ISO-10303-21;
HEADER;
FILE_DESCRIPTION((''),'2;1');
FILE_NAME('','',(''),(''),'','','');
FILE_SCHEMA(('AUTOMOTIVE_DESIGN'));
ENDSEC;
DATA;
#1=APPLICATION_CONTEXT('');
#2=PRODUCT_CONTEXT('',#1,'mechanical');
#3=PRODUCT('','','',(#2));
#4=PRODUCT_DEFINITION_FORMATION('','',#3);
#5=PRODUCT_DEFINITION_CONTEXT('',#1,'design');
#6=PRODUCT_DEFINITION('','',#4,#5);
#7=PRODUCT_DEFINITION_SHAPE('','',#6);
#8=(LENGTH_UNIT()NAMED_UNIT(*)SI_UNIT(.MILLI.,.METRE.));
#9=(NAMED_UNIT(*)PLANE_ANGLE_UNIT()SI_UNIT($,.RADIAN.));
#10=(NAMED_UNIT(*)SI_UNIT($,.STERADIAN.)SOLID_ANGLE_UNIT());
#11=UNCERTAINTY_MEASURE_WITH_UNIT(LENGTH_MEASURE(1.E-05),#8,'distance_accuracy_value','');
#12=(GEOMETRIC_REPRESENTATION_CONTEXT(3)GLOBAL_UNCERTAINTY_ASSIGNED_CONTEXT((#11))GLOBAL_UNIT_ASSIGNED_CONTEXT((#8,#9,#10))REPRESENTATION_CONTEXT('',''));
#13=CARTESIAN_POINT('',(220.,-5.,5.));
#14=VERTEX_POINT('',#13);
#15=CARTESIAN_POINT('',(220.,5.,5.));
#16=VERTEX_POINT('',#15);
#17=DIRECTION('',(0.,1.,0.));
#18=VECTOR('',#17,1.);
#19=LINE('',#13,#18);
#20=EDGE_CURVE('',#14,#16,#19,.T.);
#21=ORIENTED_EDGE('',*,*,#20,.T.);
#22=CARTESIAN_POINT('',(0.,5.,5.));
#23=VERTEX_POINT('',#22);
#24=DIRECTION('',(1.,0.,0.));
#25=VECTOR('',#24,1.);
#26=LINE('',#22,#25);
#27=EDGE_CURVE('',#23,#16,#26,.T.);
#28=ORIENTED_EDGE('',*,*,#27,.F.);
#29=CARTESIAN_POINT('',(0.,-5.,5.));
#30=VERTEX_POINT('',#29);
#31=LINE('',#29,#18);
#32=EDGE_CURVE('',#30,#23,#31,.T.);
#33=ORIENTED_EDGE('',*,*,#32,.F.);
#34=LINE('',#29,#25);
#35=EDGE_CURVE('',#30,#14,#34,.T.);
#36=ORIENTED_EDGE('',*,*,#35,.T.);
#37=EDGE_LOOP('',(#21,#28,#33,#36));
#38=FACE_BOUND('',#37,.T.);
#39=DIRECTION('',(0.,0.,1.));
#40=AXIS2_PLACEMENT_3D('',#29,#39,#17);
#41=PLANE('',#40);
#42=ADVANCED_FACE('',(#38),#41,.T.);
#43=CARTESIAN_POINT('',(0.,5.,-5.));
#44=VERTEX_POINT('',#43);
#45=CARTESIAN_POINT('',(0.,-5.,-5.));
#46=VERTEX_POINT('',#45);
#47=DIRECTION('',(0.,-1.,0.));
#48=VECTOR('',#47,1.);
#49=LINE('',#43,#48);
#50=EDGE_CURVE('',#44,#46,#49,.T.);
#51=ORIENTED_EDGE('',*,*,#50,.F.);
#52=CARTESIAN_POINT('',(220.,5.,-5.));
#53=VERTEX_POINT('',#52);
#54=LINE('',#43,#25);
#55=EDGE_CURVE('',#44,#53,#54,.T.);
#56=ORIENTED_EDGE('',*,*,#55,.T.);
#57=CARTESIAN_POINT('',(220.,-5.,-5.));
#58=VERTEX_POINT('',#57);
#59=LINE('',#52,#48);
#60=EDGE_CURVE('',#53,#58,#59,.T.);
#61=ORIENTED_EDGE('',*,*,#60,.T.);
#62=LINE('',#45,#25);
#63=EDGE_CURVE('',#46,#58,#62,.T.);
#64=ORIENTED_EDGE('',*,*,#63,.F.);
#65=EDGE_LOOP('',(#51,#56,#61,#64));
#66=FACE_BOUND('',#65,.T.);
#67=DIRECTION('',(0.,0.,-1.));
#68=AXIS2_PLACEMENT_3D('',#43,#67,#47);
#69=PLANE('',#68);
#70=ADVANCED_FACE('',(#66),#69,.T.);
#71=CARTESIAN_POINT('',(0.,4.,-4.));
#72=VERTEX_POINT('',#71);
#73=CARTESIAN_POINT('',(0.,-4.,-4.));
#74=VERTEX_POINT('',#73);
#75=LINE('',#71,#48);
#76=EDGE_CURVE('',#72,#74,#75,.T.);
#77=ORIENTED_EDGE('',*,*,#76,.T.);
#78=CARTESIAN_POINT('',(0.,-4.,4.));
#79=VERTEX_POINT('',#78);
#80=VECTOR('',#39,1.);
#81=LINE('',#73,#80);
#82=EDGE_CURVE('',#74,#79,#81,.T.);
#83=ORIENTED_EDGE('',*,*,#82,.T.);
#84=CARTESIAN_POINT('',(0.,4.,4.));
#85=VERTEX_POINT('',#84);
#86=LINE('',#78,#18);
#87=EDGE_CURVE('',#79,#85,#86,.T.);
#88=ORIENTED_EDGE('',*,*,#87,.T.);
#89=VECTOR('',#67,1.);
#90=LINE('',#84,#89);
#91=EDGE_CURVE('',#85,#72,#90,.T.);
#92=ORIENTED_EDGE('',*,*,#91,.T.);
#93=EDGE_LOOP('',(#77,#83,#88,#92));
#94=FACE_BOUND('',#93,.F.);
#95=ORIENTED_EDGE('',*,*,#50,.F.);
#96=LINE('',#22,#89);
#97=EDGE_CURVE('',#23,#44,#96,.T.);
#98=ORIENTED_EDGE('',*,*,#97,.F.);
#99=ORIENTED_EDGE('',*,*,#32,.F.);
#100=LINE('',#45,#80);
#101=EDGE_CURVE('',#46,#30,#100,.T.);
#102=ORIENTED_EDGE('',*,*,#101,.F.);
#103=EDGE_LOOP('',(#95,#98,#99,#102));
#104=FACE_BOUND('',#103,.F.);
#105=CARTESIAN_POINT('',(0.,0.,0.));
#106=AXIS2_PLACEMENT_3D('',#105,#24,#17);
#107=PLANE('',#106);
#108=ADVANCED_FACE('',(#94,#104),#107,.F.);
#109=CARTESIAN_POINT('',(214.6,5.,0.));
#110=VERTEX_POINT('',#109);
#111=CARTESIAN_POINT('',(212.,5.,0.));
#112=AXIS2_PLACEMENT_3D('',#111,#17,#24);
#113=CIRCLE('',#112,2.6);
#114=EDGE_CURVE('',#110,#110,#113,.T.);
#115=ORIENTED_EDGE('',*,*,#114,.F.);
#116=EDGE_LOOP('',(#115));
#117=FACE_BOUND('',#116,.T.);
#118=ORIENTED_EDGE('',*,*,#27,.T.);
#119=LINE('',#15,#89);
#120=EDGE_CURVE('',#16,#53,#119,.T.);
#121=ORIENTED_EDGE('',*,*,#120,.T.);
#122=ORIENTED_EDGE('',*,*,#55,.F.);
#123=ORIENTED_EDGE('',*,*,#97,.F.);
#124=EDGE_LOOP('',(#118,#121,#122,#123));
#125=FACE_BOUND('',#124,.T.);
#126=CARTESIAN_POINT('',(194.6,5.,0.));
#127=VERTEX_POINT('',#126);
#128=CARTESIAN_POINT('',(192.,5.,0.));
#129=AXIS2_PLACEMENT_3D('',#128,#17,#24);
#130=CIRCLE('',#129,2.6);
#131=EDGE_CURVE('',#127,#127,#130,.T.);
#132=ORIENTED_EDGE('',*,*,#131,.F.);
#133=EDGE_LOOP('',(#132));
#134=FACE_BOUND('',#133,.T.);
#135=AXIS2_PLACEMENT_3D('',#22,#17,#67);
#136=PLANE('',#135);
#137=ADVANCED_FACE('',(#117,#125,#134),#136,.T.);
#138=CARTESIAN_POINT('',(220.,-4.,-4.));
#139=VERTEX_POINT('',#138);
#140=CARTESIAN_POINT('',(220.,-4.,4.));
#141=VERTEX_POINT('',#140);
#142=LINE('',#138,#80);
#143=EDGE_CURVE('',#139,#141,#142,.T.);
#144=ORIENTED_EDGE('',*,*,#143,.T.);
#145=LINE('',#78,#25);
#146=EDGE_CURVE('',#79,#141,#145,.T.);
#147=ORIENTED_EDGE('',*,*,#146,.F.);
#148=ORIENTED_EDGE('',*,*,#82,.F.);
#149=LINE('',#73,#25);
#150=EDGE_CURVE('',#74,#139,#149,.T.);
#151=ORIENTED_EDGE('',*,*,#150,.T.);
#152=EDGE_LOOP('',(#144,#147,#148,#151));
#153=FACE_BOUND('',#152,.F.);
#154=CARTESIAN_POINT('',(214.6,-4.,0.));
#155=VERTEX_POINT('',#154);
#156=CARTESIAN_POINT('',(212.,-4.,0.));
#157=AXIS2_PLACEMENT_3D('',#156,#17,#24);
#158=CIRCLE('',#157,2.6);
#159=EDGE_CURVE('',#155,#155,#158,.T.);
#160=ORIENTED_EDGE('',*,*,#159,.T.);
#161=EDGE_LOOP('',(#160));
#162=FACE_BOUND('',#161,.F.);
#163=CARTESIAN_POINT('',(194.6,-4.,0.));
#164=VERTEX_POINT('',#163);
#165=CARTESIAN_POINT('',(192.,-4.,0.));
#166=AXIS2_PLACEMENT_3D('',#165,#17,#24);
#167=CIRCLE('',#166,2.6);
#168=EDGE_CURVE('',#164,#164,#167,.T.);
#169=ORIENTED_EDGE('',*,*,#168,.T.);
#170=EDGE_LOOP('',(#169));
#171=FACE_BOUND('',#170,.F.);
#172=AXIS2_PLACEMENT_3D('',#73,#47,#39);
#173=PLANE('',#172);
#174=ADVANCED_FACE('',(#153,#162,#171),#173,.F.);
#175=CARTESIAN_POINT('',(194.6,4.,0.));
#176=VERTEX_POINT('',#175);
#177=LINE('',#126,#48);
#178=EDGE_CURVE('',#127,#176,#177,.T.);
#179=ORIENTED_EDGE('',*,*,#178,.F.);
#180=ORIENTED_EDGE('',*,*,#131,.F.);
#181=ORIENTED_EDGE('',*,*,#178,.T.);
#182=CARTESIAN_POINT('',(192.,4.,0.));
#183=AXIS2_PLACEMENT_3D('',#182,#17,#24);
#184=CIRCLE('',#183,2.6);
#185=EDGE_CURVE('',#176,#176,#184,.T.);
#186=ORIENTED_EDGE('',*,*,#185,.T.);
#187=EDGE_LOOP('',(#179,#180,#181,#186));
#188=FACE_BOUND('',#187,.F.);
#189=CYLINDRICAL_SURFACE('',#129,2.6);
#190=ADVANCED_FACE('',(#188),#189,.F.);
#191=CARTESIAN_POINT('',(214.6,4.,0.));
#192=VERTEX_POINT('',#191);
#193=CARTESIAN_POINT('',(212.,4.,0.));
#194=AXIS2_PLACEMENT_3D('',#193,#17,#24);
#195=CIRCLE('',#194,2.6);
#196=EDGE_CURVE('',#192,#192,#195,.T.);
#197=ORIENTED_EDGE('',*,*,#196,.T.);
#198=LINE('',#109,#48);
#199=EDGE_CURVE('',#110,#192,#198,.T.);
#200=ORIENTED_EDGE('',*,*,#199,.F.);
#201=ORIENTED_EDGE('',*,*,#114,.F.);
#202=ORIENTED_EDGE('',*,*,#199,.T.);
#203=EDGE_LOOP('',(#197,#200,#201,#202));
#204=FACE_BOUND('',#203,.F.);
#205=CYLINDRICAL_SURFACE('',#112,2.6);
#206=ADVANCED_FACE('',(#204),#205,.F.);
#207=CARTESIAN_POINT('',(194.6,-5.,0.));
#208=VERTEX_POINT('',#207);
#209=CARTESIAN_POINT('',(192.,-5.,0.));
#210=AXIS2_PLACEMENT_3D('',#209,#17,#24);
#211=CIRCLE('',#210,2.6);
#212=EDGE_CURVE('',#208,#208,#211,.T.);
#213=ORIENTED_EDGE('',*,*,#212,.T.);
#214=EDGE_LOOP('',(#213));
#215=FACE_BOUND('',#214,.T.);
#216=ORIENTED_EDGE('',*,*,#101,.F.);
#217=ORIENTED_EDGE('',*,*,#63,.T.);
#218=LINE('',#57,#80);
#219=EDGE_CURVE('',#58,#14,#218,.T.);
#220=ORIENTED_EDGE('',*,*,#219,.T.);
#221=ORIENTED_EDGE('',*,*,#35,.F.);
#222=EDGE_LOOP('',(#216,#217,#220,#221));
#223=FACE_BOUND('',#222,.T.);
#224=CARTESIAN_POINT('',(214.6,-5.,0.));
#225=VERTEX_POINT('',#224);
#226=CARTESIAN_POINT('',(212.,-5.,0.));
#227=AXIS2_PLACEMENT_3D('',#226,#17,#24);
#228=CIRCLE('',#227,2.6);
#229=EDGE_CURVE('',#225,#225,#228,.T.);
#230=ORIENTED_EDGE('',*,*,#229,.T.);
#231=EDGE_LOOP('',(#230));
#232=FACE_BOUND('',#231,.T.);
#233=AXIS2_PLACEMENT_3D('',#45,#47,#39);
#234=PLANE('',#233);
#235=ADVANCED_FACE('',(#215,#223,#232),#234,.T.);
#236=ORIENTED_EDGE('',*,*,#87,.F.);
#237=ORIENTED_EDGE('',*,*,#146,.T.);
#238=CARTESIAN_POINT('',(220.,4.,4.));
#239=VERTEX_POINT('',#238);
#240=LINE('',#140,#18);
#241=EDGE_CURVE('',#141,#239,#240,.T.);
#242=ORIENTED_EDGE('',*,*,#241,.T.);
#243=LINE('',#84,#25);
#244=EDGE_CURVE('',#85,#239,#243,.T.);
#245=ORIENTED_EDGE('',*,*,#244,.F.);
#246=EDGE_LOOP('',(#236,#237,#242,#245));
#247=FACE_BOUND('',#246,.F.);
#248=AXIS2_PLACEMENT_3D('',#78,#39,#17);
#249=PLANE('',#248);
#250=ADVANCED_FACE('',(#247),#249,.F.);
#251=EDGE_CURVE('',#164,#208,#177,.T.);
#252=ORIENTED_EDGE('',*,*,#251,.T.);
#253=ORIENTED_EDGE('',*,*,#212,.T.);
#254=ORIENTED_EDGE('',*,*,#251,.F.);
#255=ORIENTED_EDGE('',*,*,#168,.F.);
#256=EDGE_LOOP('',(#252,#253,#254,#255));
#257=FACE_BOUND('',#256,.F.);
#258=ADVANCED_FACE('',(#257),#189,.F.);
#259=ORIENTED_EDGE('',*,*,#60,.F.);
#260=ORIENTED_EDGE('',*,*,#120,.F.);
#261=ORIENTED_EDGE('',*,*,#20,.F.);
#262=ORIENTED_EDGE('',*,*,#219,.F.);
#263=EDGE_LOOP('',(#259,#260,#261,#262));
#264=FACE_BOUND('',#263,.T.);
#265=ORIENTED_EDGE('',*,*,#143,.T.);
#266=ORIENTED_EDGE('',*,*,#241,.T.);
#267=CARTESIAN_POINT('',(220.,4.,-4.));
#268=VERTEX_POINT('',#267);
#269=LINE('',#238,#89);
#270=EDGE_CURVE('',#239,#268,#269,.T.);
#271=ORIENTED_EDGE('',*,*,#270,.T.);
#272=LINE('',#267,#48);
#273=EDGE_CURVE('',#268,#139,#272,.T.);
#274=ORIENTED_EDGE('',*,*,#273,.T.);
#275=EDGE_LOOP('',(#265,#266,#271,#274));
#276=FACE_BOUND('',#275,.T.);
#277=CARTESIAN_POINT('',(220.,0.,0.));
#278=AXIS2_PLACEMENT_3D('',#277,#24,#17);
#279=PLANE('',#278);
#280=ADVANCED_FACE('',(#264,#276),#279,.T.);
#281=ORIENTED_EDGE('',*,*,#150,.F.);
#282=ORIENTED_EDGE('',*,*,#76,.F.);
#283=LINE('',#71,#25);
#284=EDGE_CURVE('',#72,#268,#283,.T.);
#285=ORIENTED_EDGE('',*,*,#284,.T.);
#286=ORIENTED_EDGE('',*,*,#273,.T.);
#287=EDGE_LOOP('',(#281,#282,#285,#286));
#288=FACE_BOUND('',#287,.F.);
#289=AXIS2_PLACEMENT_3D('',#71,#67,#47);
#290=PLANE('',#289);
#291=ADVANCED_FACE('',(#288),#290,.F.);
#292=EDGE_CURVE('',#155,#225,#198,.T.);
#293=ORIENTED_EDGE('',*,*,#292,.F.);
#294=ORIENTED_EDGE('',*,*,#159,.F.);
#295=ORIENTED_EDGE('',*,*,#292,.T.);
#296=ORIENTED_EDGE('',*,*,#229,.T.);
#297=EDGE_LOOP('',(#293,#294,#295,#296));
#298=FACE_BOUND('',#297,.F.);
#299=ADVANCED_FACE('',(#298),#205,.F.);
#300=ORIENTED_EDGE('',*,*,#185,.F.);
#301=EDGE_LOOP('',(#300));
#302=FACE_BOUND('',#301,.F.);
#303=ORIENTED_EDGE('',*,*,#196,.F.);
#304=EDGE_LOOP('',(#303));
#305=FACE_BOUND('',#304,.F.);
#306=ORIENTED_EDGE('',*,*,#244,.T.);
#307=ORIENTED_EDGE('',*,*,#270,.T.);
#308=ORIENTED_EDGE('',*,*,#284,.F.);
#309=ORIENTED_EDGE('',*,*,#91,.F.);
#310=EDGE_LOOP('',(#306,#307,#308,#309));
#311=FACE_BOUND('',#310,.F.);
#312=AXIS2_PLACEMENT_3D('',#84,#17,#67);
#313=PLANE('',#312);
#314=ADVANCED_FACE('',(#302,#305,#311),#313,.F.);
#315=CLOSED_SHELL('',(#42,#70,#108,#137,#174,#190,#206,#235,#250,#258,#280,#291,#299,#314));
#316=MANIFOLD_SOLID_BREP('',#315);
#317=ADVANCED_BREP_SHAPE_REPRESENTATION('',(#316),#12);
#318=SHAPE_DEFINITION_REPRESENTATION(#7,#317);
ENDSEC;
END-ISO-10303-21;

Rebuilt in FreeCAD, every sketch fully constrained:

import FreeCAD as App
import Part
import Sketcher


def add_polygon(sketch, points):
    """Adds a closed chain of lines whose ends are joined by coincident constraints."""
    first, n = sketch.GeometryCount, len(points)
    for a, b in zip(points, points[1:] + points[:1]):
        sketch.addGeometry(Part.LineSegment(App.Vector(*a, 0), App.Vector(*b, 0)), False)
    for i in range(n):
        sketch.addConstraint(Sketcher.Constraint("Coincident", first + i, 2, first + (i + 1) % n, 1))

doc = App.newDocument("Part")
body = doc.addObject("PartDesign::Body", "Body")

sketch1 = body.newObject("Sketcher::SketchObject", "Sketch")
sketch1.AttachmentSupport = (doc.getObject("YZ_Plane"), [""])
sketch1.MapMode = "FlatFace"
add_polygon(sketch1, [(5, 5), (-5, 5), (-5, -5), (5, -5)])
add_polygon(sketch1, [(-4, -4), (-4, 4), (4, 4), (4, -4)])
sketch1.addConstraint([
    Sketcher.Constraint("Horizontal", 0),
    Sketcher.Constraint("Vertical", 1),
    Sketcher.Constraint("Horizontal", 2),
    Sketcher.Constraint("Vertical", 3),
    Sketcher.Constraint("Vertical", 4),
    Sketcher.Constraint("Horizontal", 5),
    Sketcher.Constraint("Vertical", 6),
    Sketcher.Constraint("Horizontal", 7),
    Sketcher.Constraint("Symmetric", 0, 2, 2, 2, -1, 1),
    Sketcher.Constraint("Symmetric", 4, 2, 6, 2, -1, 1),
    Sketcher.Constraint("Equal", 2, 1),
    Sketcher.Constraint("Equal", 7, 4),
    Sketcher.Constraint("DistanceX", 0, 2, 0, 1, 10.0),
    Sketcher.Constraint("DistanceX", 5, 1, 5, 2, 8.0),
])
pad1 = body.newObject("PartDesign::Pad", "Pad")
pad1.Profile = sketch1
pad1.Length = 220

sketch2 = body.newObject("Sketcher::SketchObject", "Sketch001")
sketch2.AttachmentSupport = (doc.getObject("XZ_Plane"), [""])
sketch2.MapMode = "FlatFace"
sketch2.AttachmentOffset = App.Placement(App.Vector(0, 0, -5), App.Rotation())
sketch2.addGeometry([
    Part.Circle(App.Vector(212, 0, 0), App.Vector(0, 0, 1), 2.6),
    Part.Circle(App.Vector(192, 0, 0), App.Vector(0, 0, 1), 2.6),
], False)
sketch2.addConstraint([
    Sketcher.Constraint("Equal", 0, 1),
    Sketcher.Constraint("PointOnObject", 0, 3, -1),
    Sketcher.Constraint("PointOnObject", 1, 3, -1),
    Sketcher.Constraint("Diameter", 0, 5.2),
    Sketcher.Constraint("DistanceX", 1, 3, 0, 3, 20.0),
    Sketcher.Constraint("DistanceX", -1, 1, 0, 3, 212.0),
])
pocket1 = body.newObject("PartDesign::Pocket", "Pocket")
pocket1.Profile = sketch2
pocket1.Length = 10
pocket1.Reversed = True

doc.recompute()
